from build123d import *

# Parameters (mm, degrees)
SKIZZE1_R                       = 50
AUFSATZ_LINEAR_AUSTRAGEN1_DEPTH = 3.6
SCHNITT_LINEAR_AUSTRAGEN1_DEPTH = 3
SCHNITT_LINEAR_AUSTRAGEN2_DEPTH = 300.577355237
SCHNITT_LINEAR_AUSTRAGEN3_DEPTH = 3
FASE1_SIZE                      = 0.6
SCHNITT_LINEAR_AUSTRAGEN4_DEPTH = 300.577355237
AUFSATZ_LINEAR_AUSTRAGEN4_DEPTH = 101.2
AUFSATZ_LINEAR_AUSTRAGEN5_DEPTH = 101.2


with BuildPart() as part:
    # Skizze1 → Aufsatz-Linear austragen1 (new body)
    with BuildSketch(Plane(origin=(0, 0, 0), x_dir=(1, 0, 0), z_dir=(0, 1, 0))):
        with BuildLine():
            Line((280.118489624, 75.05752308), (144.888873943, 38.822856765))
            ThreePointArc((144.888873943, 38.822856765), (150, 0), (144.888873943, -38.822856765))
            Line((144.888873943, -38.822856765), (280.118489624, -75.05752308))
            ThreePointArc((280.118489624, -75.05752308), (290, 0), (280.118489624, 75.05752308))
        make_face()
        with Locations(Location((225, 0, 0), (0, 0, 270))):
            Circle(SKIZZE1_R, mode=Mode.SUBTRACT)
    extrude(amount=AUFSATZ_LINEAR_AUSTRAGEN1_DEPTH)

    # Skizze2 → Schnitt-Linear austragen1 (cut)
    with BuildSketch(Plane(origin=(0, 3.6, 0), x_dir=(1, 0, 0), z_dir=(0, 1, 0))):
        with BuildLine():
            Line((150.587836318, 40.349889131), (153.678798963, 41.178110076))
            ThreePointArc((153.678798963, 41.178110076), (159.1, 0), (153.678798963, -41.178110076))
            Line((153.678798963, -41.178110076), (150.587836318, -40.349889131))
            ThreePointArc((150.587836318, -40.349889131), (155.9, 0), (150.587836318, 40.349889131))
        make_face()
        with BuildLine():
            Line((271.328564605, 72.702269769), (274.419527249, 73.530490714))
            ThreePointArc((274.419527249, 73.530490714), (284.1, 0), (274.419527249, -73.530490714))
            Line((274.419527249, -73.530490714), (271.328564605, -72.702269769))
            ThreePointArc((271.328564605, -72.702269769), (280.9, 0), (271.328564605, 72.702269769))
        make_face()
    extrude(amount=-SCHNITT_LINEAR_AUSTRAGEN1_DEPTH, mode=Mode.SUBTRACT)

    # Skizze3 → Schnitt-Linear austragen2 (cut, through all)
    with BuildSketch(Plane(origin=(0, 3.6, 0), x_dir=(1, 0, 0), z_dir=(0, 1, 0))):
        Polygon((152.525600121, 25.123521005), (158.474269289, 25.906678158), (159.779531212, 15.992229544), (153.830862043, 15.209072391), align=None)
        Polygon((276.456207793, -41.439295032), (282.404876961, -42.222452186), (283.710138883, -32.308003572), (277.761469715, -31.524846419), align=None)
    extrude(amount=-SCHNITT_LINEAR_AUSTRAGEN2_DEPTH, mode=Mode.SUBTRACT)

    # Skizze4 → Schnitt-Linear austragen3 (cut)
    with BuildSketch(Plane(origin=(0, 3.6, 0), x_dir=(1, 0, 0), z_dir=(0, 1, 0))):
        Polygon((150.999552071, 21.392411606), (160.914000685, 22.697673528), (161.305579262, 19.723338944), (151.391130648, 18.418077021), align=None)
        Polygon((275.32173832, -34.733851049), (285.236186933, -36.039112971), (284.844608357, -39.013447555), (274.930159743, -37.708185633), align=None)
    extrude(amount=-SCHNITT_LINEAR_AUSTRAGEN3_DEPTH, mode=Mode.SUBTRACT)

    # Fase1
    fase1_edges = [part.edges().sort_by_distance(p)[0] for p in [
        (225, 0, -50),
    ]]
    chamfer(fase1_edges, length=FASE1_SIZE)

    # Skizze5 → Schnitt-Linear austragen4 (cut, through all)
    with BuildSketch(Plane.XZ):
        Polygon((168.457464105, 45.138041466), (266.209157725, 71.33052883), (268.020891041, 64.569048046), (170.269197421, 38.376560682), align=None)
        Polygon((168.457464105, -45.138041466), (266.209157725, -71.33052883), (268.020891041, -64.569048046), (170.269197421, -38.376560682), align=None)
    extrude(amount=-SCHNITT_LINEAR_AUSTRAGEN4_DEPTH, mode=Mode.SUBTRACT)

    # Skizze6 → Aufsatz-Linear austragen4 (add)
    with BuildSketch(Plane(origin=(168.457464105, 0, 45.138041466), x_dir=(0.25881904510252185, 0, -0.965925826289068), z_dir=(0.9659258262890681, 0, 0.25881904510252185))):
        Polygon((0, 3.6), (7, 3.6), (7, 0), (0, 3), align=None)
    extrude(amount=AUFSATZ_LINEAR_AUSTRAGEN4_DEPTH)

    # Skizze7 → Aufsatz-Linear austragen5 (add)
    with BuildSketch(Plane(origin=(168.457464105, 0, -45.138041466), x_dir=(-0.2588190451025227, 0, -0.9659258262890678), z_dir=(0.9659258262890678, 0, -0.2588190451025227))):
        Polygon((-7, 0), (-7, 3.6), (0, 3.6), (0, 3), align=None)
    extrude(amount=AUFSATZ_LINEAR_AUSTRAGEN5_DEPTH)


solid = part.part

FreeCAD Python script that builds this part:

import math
import FreeCAD as App
import Part
import Sketcher
Q = App.Units.Quantity


def edges_at(feature, points):
    """Names of the edges that pass closest to the given points."""
    edges = feature.Shape.Edges
    near = lambda p: min(range(len(edges)), key=lambda i: edges[i].distToShape(Part.Vertex(*p))[0])
    return sorted({f"Edge{near(p) + 1}" for p in points})


def add_polygon(sketch, points):
    """Adds a closed chain of lines whose ends are joined by coincident constraints."""
    first, n = sketch.GeometryCount, len(points)
    for a, b in zip(points, points[1:] + points[:1]):
        sketch.addGeometry(Part.LineSegment(App.Vector(*a, 0), App.Vector(*b, 0)), False)
    for i in range(n):
        sketch.addConstraint(Sketcher.Constraint("Coincident", first + i, 2, first + (i + 1) % n, 1))

doc = App.newDocument("Part")
body = doc.addObject("PartDesign::Body", "Body")

sketch1 = body.newObject("Sketcher::SketchObject", "Sketch")
sketch1.AttachmentSupport = (doc.getObject("XZ_Plane"), [""])
sketch1.MapMode = "FlatFace"
sketch1.addGeometry([
    Part.LineSegment(App.Vector(280, -75, 0), App.Vector(145, -39, 0)),
    Part.ArcOfCircle(Part.Circle(App.Vector(0, 0, 0), App.Vector(0, 0, 1), 150), math.radians(-15), math.radians(15)),
    Part.LineSegment(App.Vector(145, 39, 0), App.Vector(280, 75, 0)),
    Part.ArcOfCircle(Part.Circle(App.Vector(0, 0, 0), App.Vector(0, 0, 1), 290), math.radians(-15), math.radians(15)),
    Part.Circle(App.Vector(225, 0, 0), App.Vector(0, 0, 1), 50),
], False)
sketch1.addConstraint([
    Sketcher.Constraint("Coincident", 0, 2, 1, 1),
    Sketcher.Constraint("Coincident", 1, 2, 2, 1),
    Sketcher.Constraint("Coincident", 2, 2, 3, 2),
    Sketcher.Constraint("Coincident", 3, 1, 0, 1),
    Sketcher.Constraint("Coincident", 1, 3, -1, 1),
    Sketcher.Constraint("Coincident", 3, 3, -1, 1),
    Sketcher.Constraint("PointOnObject", 4, 3, -1),
    Sketcher.Constraint("Vertical", 0, 2, 1, 2),
    Sketcher.Constraint("Vertical", 2, 2, 3, 1),
    Sketcher.Constraint("Diameter", 4, Q("100 mm")),
    Sketcher.Constraint("Radius", 1, Q("150 mm")),
    Sketcher.Constraint("Radius", 3, Q("290 mm")),
    Sketcher.Constraint("Angle", 0, Q("165 deg")),
    Sketcher.Constraint("DistanceX", -1, 1, 4, 3, Q("225 mm")),
    Sketcher.Constraint("DistanceX", -1, 1, 2, 2, Q("280.11849 mm")),
])
pad1 = body.newObject("PartDesign::Pad", "Pad")
pad1.Profile = sketch1
pad1.Length = 3.6
pad1.Reversed = True

sketch2 = body.newObject("Sketcher::SketchObject", "Sketch001")
sketch2.AttachmentSupport = (doc.getObject("XZ_Plane"), [""])
sketch2.MapMode = "FlatFace"
sketch2.AttachmentOffset = App.Placement(App.Vector(0, 0, -3.6), App.Rotation())
sketch2.addGeometry([
    Part.LineSegment(App.Vector(153.7, -41.2, 0), App.Vector(150.6, -40.3, 0)),
    Part.ArcOfCircle(Part.Circle(App.Vector(0, 0, 0), App.Vector(0, 0, 1), 155.9), math.radians(-15), math.radians(15)),
    Part.LineSegment(App.Vector(150.6, 40.3, 0), App.Vector(153.7, 41.2, 0)),
    Part.ArcOfCircle(Part.Circle(App.Vector(0, 0, 0), App.Vector(0, 0, 1), 159.1), math.radians(-15), math.radians(15)),
    Part.LineSegment(App.Vector(274.4, -73.5, 0), App.Vector(271.3, -72.7, 0)),
    Part.ArcOfCircle(Part.Circle(App.Vector(0, 0, 0), App.Vector(0, 0, 1), 280.9), math.radians(-15), math.radians(15)),
    Part.LineSegment(App.Vector(271.3, 72.7, 0), App.Vector(274.4, 73.5, 0)),
    Part.ArcOfCircle(Part.Circle(App.Vector(0, 0, 0), App.Vector(0, 0, 1), 284.1), math.radians(-15), math.radians(15)),
], False)
sketch2.addConstraint([
    Sketcher.Constraint("Coincident", 0, 2, 1, 1),
    Sketcher.Constraint("Coincident", 1, 2, 2, 1),
    Sketcher.Constraint("Coincident", 2, 2, 3, 2),
    Sketcher.Constraint("Coincident", 3, 1, 0, 1),
    Sketcher.Constraint("Coincident", 4, 2, 5, 1),
    Sketcher.Constraint("Coincident", 5, 2, 6, 1),
    Sketcher.Constraint("Coincident", 6, 2, 7, 2),
    Sketcher.Constraint("Coincident", 7, 1, 4, 1),
    Sketcher.Constraint("Coincident", 1, 3, -1, 1),
    Sketcher.Constraint("Coincident", 3, 3, -1, 1),
    Sketcher.Constraint("Coincident", 5, 3, -1, 1),
    Sketcher.Constraint("Coincident", 7, 3, -1, 1),
    Sketcher.Constraint("Parallel", 0, 4),
    Sketcher.Constraint("Parallel", 2, 6),
    Sketcher.Constraint("Vertical", 0, 2, 1, 2),
    Sketcher.Constraint("Vertical", 2, 2, 3, 1),
    Sketcher.Constraint("Vertical", 4, 2, 5, 2),
    Sketcher.Constraint("Equal", 2, 4),
    Sketcher.Constraint("Radius", 1, Q("155.9 mm")),
    Sketcher.Constraint("Radius", 3, Q("159.1 mm")),
    Sketcher.Constraint("Radius", 5, Q("280.9 mm")),
    Sketcher.Constraint("Angle", 0, Q("165 deg")),
    Sketcher.Constraint("DistanceY", 0, 2, 2, 2, Q("81.527999 mm")),
    Sketcher.Constraint("DistanceY", 1, 2, 6, 2, Q("33.180602 mm")),
])
pocket1 = body.newObject("PartDesign::Pocket", "Pocket")
pocket1.Profile = sketch2
pocket1.Length = 3
pocket1.Reversed = True

sketch3 = body.newObject("Sketcher::SketchObject", "Sketch002")
sketch3.AttachmentSupport = (doc.getObject("XZ_Plane"), [""])
sketch3.MapMode = "FlatFace"
sketch3.AttachmentOffset = App.Placement(App.Vector(0, 0, -3.6), App.Rotation())
add_polygon(sketch3, [(158, -26), (153, -25), (154, -15), (160, -16)])
add_polygon(sketch3, [(276, 41), (282, 42), (284, 32), (278, 32)])
sketch3.addConstraint([
    Sketcher.Constraint("Perpendicular", 0, 1),
    Sketcher.Constraint("Perpendicular", 1, 2),
    Sketcher.Constraint("Perpendicular", 2, 3),
    Sketcher.Constraint("Perpendicular", 4, 5),
    Sketcher.Constraint("Perpendicular", 5, 6),
    Sketcher.Constraint("Perpendicular", 6, 7),
    Sketcher.Constraint("Equal", 2, 4),
    Sketcher.Constraint("Equal", 3, 5),
    Sketcher.Constraint("Distance", 0, Q("6 mm")),
    Sketcher.Constraint("Distance", 1, Q("10 mm")),
    Sketcher.Constraint("Angle", 0, Q("172.5 deg")),
    Sketcher.Constraint("Angle", 4, Q("7.5 deg")),
    Sketcher.Constraint("DistanceX", -1, 1, 0, 2, Q("152.5256 mm")),
    Sketcher.Constraint("DistanceX", 3, 2, 6, 2, Q("119.2872 mm")),
    Sketcher.Constraint("DistanceY", 0, 2, -1, 1, Q("25.123521 mm")),
    Sketcher.Constraint("DistanceY", 2, 2, 4, 2, Q("58.214682 mm")),
])
pocket2 = body.newObject("PartDesign::Pocket", "Pocket001")
pocket2.Profile = sketch3
pocket2.Type = "ThroughAll"
pocket2.Reversed = True

sketch4 = body.newObject("Sketcher::SketchObject", "Sketch003")
sketch4.AttachmentSupport = (doc.getObject("XZ_Plane"), [""])
sketch4.MapMode = "FlatFace"
sketch4.AttachmentOffset = App.Placement(App.Vector(0, 0, -3.6), App.Rotation())
add_polygon(sketch4, [(160.9, -22.7), (151, -21.4), (151.4, -18.4), (161.3, -19.7)])
add_polygon(sketch4, [(285.2, 36), (275.3, 34.7), (274.9, 37.7), (284.8, 39)])
sketch4.addConstraint([
    Sketcher.Constraint("Perpendicular", 0, 1),
    Sketcher.Constraint("Perpendicular", 1, 2),
    Sketcher.Constraint("Perpendicular", 2, 3),
    Sketcher.Constraint("Perpendicular", 4, 5),
    Sketcher.Constraint("Perpendicular", 5, 6),
    Sketcher.Constraint("Perpendicular", 6, 7),
    Sketcher.Constraint("Equal", 2, 4),
    Sketcher.Constraint("Equal", 3, 5),
    Sketcher.Constraint("Distance", 0, Q("10 mm")),
    Sketcher.Constraint("Distance", 1, Q("3 mm")),
    Sketcher.Constraint("Angle", 0, Q("172.5 deg")),
    Sketcher.Constraint("Angle", 4, Q("-172.5 deg")),
    Sketcher.Constraint("DistanceX", -1, 1, 3, 2, Q("160.914001 mm")),
    Sketcher.Constraint("DistanceY", 0, 2, -1, 1, Q("21.392412 mm")),
    Sketcher.Constraint("DistanceX", -1, 1, 4, 2, Q("275.321738 mm")),
    Sketcher.Constraint("DistanceY", -1, 1, 4, 2, Q("34.733851 mm")),
])
pocket3 = body.newObject("PartDesign::Pocket", "Pocket002")
pocket3.Profile = sketch4
pocket3.Length = 3
pocket3.Reversed = True
doc.recompute()

chamfer = body.newObject("PartDesign::Chamfer", "Chamfer")
chamfer.Base = (pocket3, edges_at(pocket3, [(225, 0, -50)]))
chamfer.Size = 0.6

sketch5 = body.newObject("Sketcher::SketchObject", "Sketch004")
sketch5.AttachmentSupport = (doc.getObject("XZ_Plane"), [""])
sketch5.MapMode = "FlatFace"
add_polygon(sketch5, [(266, 71), (168, 45), (170, 38), (268, 65)])
add_polygon(sketch5, [(168, -45), (266, -71), (268, -65), (170, -38)])
sketch5.addConstraint([
    Sketcher.Constraint("Symmetric", 3, 2, 4, 2, -1),
    Sketcher.Constraint("Symmetric", 2, 2, 5, 2, -1),
    Sketcher.Constraint("Symmetric", 1, 2, 6, 2, -1),
    Sketcher.Constraint("Symmetric", 0, 2, 7, 2, -1),
    Sketcher.Constraint("Perpendicular", 0, 1),
    Sketcher.Constraint("Perpendicular", 1, 2),
    Sketcher.Constraint("Perpendicular", 2, 3),
    Sketcher.Constraint("Angle", 0, Q("-165 deg")),
    Sketcher.Constraint("Distance", 1, Q("7 mm")),
    Sketcher.Constraint("Distance", 0, Q("101.2 mm")),
    Sketcher.Constraint("DistanceY", -1, 1, 0, 2, Q("45.138041 mm")),
    Sketcher.Constraint("DistanceX", -1, 1, 2, 2, Q("268.020891 mm")),
])
pocket4 = body.newObject("PartDesign::Pocket", "Pocket003")
pocket4.Profile = sketch5
pocket4.Type = "ThroughAll"

sketch6 = body.newObject("Sketcher::SketchObject", "Sketch005")
sketch6.Placement = App.Placement(App.Vector(168.457464, 0, 45.138041), App.Rotation(App.Vector(0.258819045, 0, -0.965925826), App.Vector(0, 0.999999999, 0), App.Vector(0.965925826, 0, 0.258819045), "ZXY"))
add_polygon(sketch6, [(7, 3.6), (0, 3.6), (0, 3), (7, 0)])
sketch6.addConstraint([
    Sketcher.Constraint("Horizontal", 0),
    Sketcher.Constraint("Vertical", 1),
    Sketcher.Constraint("Vertical", 3),
    Sketcher.Constraint("PointOnObject", 0, 2, -2),
    Sketcher.Constraint("PointOnObject", 2, 2, -1),
    Sketcher.Constraint("DistanceX", 0, 2, 0, 1, Q("7 mm")),
    Sketcher.Constraint("DistanceY", 1, 2, 1, 1, Q("0.6 mm")),
    Sketcher.Constraint("DistanceY", 3, 1, 3, 2, Q("3.6 mm")),
])
pad2 = body.newObject("PartDesign::Pad", "Pad001")
pad2.Profile = sketch6
pad2.Length = 101.2

sketch7 = body.newObject("Sketcher::SketchObject", "Sketch006")
sketch7.Placement = App.Placement(App.Vector(168.457464, 0, -45.138041), App.Rotation(App.Vector(-0.258819045, 0, -0.965925826), App.Vector(0, 0.999999999, 0), App.Vector(0.965925826, 0, -0.258819045), "ZXY"))
add_polygon(sketch7, [(-7, 3.6), (-7, 0), (0, 3), (0, 3.6)])
sketch7.addConstraint([
    Sketcher.Constraint("Vertical", 0),
    Sketcher.Constraint("Vertical", 2),
    Sketcher.Constraint("Horizontal", 3),
    Sketcher.Constraint("PointOnObject", 0, 2, -1),
    Sketcher.Constraint("PointOnObject", 1, 2, -2),
    Sketcher.Constraint("DistanceX", 3, 2, 3, 1, Q("7 mm")),
    Sketcher.Constraint("DistanceY", 0, 2, 0, 1, Q("3.6 mm")),
    Sketcher.Constraint("DistanceY", 2, 1, 2, 2, Q("0.6 mm")),
])
pad3 = body.newObject("PartDesign::Pad", "Pad002")
pad3.Profile = sketch7
pad3.Length = 101.2

doc.recompute()
